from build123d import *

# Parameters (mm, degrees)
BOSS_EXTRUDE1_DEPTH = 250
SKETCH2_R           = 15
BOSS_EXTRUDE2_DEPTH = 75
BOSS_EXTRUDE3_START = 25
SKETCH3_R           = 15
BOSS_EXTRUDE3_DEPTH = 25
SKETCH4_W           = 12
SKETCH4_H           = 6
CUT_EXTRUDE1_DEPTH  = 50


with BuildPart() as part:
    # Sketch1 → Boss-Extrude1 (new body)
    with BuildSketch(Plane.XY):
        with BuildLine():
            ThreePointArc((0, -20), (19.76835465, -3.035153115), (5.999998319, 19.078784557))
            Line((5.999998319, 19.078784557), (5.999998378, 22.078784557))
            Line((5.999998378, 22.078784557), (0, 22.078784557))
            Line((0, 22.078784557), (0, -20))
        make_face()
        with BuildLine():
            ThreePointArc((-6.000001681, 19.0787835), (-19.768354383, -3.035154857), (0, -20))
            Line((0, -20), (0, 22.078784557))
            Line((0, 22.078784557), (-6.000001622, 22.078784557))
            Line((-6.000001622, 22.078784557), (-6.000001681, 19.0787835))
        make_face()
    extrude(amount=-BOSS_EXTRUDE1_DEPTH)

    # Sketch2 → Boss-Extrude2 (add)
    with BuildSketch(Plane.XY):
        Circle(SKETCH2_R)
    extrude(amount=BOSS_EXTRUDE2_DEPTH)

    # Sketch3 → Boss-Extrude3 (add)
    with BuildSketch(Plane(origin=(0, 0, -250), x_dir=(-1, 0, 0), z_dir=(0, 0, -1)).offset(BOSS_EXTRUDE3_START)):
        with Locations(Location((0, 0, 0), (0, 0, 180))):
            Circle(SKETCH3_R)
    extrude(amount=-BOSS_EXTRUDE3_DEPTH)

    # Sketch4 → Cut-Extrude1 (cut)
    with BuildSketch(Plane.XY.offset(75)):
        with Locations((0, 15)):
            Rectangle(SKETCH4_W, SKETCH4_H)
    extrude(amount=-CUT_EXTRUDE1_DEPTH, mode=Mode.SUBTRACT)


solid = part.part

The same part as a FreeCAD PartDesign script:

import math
import FreeCAD as App
import Part
import Sketcher
Q = App.Units.Quantity

doc = App.newDocument("Part")
body = doc.addObject("PartDesign::Body", "Body")

# Sketch on XY plane
sketch1 = doc.addObject("Sketcher::SketchObject", "Sketch")
body.addObject(sketch1)
sketch1.AttachmentSupport = (doc.XY_Plane, [""])
sketch1.MapMode = "FlatFace"
sketch1.addGeometry(Part.ArcOfCircle(Part.Circle(App.Vector(0, 0, 0), App.Vector(0, 0, 1), 20), math.radians(-90), math.radians(73)), False)
sketch1.addGeometry(Part.LineSegment(App.Vector(6, 19.1, 0), App.Vector(6, 22.1, 0)), False)
sketch1.addGeometry(Part.LineSegment(App.Vector(6, 22.1, 0), App.Vector(-6, 22.1, 0)), False)
sketch1.addGeometry(Part.LineSegment(App.Vector(-6, 22.1, 0), App.Vector(-6, 19.1, 0)), False)
sketch1.addGeometry(Part.ArcOfCircle(Part.Circle(App.Vector(0, 0, 0), App.Vector(0, 0, 1), 20), math.radians(107), math.radians(270)), False)
sketch1.addConstraint(Sketcher.Constraint("Coincident", 0, 2, 1, 1))
sketch1.addConstraint(Sketcher.Constraint("Coincident", 1, 2, 2, 1))
sketch1.addConstraint(Sketcher.Constraint("Coincident", 2, 2, 3, 1))
sketch1.addConstraint(Sketcher.Constraint("Coincident", 3, 2, 4, 1))
sketch1.addConstraint(Sketcher.Constraint("Tangent", 4, 2, 0, 1))
sketch1.addConstraint(Sketcher.Constraint("Vertical", 1))
sketch1.addConstraint(Sketcher.Constraint("Horizontal", 2))
sketch1.addConstraint(Sketcher.Constraint("Vertical", 3))
sketch1.addConstraint(Sketcher.Constraint("Coincident", 0, 3, -1, 1))
sketch1.addConstraint(Sketcher.Constraint("Equal", 0, 4))
sketch1.addConstraint(Sketcher.Constraint("PointOnObject", 4, 2, -2))
sketch1.addConstraint(Sketcher.Constraint("Horizontal", 0, 2, 3, 2))
sketch1.addConstraint(Sketcher.Constraint("Radius", 0, Q("20 mm")))
sketch1.addConstraint(Sketcher.Constraint("DistanceX", 2, 2, 2, 1, Q("12 mm")))
sketch1.addConstraint(Sketcher.Constraint("DistanceY", 1, 1, 1, 2, Q("3 mm")))
pad1 = doc.addObject("PartDesign::Pad", "Pad")
body.addObject(pad1)
pad1.Profile = sketch1
pad1.Length = 250
pad1.Reversed = True

# Sketch on XY plane
sketch2 = doc.addObject("Sketcher::SketchObject", "Sketch001")
body.addObject(sketch2)
sketch2.AttachmentSupport = (doc.XY_Plane, [""])
sketch2.MapMode = "FlatFace"
sketch2.addGeometry(Part.Circle(App.Vector(0, 0, 0), App.Vector(0, 0, 1), 15), False)
sketch2.addConstraint(Sketcher.Constraint("Coincident", 0, 3, -1, 1))
sketch2.addConstraint(Sketcher.Constraint("Diameter", 0, Q("30 mm")))
pad2 = doc.addObject("PartDesign::Pad", "Pad001")
body.addObject(pad2)
pad2.Profile = sketch2
pad2.Length = 75

# Sketch on XY plane
sketch3 = doc.addObject("Sketcher::SketchObject", "Sketch002")
body.addObject(sketch3)
sketch3.AttachmentSupport = (doc.XY_Plane, [""])
sketch3.MapMode = "FlatFace"
sketch3.AttachmentOffset = App.Placement(App.Vector(0, 0, -275), App.Rotation())
sketch3.addGeometry(Part.Circle(App.Vector(0, 0, 0), App.Vector(0, 0, 1), 15), False)
sketch3.addConstraint(Sketcher.Constraint("Coincident", 0, 3, -1, 1))
sketch3.addConstraint(Sketcher.Constraint("Diameter", 0, Q("30 mm")))
pad3 = doc.addObject("PartDesign::Pad", "Pad002")
body.addObject(pad3)
pad3.Profile = sketch3
pad3.Length = 25

# Sketch on XY plane
sketch4 = doc.addObject("Sketcher::SketchObject", "Sketch003")
body.addObject(sketch4)
sketch4.AttachmentSupport = (doc.XY_Plane, [""])
sketch4.MapMode = "FlatFace"
sketch4.AttachmentOffset = App.Placement(App.Vector(0, 0, 75), App.Rotation())
sketch4.addGeometry(Part.LineSegment(App.Vector(-6, 18, 0), App.Vector(-6, 12, 0)), False)
sketch4.addGeometry(Part.LineSegment(App.Vector(-6, 12, 0), App.Vector(6, 12, 0)), False)
sketch4.addGeometry(Part.LineSegment(App.Vector(6, 12, 0), App.Vector(6, 18, 0)), False)
sketch4.addGeometry(Part.LineSegment(App.Vector(6, 18, 0), App.Vector(-6, 18, 0)), False)
sketch4.addConstraint(Sketcher.Constraint("Coincident", 0, 2, 1, 1))
sketch4.addConstraint(Sketcher.Constraint("Coincident", 1, 2, 2, 1))
sketch4.addConstraint(Sketcher.Constraint("Coincident", 2, 2, 3, 1))
sketch4.addConstraint(Sketcher.Constraint("Coincident", 3, 2, 0, 1))
sketch4.addConstraint(Sketcher.Constraint("Vertical", 0))
sketch4.addConstraint(Sketcher.Constraint("Horizontal", 1))
sketch4.addConstraint(Sketcher.Constraint("Vertical", 2))
sketch4.addConstraint(Sketcher.Constraint("Horizontal", 3))
sketch4.addConstraint(Sketcher.Constraint("DistanceX", 1, 1, 1, 2, Q("12 mm")))
sketch4.addConstraint(Sketcher.Constraint("DistanceY", 0, 2, 0, 1, Q("6 mm")))
sketch4.addConstraint(Sketcher.Constraint("DistanceX", 0, 2, -1, 1, Q("6 mm")))
sketch4.addConstraint(Sketcher.Constraint("DistanceY", -1, 1, 0, 2, Q("12 mm")))
pocket1 = doc.addObject("PartDesign::Pocket", "Pocket")
body.addObject(pocket1)
pocket1.Profile = sketch4
pocket1.Length = 50

doc.recompute()
